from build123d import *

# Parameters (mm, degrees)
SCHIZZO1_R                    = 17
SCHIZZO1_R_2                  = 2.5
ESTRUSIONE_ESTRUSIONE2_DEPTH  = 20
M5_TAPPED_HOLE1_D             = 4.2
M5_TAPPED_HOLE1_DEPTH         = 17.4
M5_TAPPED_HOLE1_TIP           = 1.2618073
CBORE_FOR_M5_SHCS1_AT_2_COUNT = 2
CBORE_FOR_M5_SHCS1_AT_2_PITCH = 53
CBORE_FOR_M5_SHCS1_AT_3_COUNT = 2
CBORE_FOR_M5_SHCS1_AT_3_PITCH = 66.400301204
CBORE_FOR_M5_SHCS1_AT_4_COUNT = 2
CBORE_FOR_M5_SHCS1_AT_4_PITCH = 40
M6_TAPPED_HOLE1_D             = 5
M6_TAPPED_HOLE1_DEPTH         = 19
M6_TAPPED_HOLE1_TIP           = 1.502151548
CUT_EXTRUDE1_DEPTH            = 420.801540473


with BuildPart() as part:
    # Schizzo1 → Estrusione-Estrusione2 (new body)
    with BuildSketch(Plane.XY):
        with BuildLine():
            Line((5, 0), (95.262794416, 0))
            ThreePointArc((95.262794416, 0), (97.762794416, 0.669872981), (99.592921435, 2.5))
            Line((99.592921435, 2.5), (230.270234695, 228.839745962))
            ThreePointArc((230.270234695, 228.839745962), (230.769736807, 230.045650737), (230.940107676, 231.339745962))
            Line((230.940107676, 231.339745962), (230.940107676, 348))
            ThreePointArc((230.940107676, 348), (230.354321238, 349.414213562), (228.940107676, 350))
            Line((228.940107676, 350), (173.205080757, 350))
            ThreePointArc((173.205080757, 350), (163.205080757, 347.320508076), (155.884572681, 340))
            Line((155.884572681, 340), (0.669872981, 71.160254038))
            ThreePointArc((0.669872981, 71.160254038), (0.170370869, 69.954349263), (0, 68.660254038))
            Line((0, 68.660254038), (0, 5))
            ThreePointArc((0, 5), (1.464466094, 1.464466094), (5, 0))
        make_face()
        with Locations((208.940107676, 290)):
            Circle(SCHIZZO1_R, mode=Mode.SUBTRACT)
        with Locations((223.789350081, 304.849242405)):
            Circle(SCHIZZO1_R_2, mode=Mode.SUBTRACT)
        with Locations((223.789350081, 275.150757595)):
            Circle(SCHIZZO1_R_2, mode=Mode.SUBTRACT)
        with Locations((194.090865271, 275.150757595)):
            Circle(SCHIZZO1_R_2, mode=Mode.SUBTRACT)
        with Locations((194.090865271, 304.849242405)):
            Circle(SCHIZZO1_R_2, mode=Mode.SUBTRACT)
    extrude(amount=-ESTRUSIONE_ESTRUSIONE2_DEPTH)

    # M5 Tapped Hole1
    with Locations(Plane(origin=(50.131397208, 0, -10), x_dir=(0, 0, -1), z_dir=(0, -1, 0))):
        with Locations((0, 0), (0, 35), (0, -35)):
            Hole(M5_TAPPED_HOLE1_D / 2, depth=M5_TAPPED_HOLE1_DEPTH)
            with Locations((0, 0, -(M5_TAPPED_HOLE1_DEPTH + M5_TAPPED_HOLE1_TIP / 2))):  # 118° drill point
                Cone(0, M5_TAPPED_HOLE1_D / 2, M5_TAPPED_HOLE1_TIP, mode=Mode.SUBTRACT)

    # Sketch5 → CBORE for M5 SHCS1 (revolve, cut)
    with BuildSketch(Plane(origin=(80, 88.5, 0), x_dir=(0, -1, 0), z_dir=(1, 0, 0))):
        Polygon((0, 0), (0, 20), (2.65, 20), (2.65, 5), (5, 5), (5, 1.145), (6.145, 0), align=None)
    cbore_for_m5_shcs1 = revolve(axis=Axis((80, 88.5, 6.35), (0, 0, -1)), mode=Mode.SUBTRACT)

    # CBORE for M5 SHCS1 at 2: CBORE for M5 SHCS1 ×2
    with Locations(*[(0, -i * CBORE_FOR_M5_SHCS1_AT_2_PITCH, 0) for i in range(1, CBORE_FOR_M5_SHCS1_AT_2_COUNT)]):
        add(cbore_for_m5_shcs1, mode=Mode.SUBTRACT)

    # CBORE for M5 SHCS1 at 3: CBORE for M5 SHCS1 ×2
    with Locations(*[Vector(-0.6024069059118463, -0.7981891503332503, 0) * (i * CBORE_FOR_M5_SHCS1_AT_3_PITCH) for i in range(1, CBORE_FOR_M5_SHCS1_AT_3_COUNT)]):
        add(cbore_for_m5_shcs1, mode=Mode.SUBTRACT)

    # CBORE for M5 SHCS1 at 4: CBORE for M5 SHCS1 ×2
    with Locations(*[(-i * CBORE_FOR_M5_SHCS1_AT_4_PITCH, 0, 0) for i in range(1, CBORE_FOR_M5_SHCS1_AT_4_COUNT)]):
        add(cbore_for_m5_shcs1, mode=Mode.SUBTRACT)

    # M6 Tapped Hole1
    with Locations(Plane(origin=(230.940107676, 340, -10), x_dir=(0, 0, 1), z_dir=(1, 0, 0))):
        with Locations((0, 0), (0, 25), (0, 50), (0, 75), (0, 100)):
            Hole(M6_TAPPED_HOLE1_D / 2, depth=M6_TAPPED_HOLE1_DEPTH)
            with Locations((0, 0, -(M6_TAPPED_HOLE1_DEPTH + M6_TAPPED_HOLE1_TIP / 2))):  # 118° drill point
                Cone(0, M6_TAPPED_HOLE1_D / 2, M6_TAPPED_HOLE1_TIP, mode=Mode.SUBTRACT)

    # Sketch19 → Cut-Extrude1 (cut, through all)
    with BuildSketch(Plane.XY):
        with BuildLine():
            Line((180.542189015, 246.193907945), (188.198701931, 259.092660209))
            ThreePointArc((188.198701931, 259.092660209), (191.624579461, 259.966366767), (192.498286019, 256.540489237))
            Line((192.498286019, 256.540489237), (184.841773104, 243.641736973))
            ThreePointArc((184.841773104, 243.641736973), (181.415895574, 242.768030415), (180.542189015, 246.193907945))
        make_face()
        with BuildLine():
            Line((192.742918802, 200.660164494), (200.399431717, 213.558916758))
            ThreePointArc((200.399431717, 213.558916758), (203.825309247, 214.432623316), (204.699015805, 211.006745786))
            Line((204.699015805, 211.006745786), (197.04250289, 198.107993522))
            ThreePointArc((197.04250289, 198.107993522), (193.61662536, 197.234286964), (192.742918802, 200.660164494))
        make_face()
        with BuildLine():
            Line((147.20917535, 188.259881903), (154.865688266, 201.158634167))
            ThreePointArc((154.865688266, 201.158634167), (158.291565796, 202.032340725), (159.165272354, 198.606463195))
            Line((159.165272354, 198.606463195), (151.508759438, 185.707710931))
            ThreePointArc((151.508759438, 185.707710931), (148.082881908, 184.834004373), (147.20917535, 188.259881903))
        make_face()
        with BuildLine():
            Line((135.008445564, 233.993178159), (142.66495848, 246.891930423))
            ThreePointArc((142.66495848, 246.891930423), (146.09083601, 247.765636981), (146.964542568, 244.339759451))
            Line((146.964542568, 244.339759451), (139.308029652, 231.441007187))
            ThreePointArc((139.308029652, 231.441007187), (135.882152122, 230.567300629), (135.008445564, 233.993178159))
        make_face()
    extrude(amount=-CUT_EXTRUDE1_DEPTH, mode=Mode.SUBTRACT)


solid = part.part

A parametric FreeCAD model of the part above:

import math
import FreeCAD as App
import Part
import Sketcher
from FreeCAD import Vector
Q = App.Units.Quantity


def add_polygon(sketch, points):
    """Adds a closed chain of lines whose ends are joined by coincident constraints."""
    first, n = sketch.GeometryCount, len(points)
    for a, b in zip(points, points[1:] + points[:1]):
        sketch.addGeometry(Part.LineSegment(App.Vector(*a, 0), App.Vector(*b, 0)), False)
    for i in range(n):
        sketch.addConstraint(Sketcher.Constraint("Coincident", first + i, 2, first + (i + 1) % n, 1))

doc = App.newDocument("Part")
body = doc.addObject("PartDesign::Body", "Body")

# Sketch on XY plane
sketch1 = doc.addObject("Sketcher::SketchObject", "Sketch")
body.addObject(sketch1)
sketch1.AttachmentSupport = (doc.XY_Plane, [""])
sketch1.MapMode = "FlatFace"
sketch1.addGeometry(Part.LineSegment(Vector(5, 0, 0), Vector(95.3, 0, 0)), False)
sketch1.addGeometry(Part.ArcOfCircle(Part.Circle(Vector(95.3, 5, 0), Vector(0, 0, 1), 5), math.radians(-90), math.radians(-30)), False)
sketch1.addGeometry(Part.LineSegment(Vector(99.6, 2.5, 0), Vector(230.3, 228.8, 0)), False)
sketch1.addGeometry(Part.ArcOfCircle(Part.Circle(Vector(225.9, 231.3, 0), Vector(0, 0, 1), 5), math.radians(-30), math.radians(0)), False)
sketch1.addGeometry(Part.LineSegment(Vector(230.9, 231.3, 0), Vector(230.9, 348, 0)), False)
sketch1.addGeometry(Part.ArcOfCircle(Part.Circle(Vector(228.9, 348, 0), Vector(0, 0, 1), 2), math.radians(0), math.radians(90)), False)
sketch1.addGeometry(Part.LineSegment(Vector(228.9, 350, 0), Vector(173.2, 350, 0)), False)
sketch1.addGeometry(Part.ArcOfCircle(Part.Circle(Vector(173.2, 330, 0), Vector(0, 0, 1), 20), math.radians(90), math.radians(150)), False)
sketch1.addGeometry(Part.LineSegment(Vector(155.9, 340, 0), Vector(0.7, 71.2, 0)), False)
sketch1.addGeometry(Part.ArcOfCircle(Part.Circle(Vector(5, 68.7, 0), Vector(0, 0, 1), 5), math.radians(150), math.radians(180)), False)
sketch1.addGeometry(Part.LineSegment(Vector(0, 68.7, 0), Vector(0, 5, 0)), False)
sketch1.addGeometry(Part.ArcOfCircle(Part.Circle(Vector(5, 5, 0), Vector(0, 0, 1), 5), math.radians(180), math.radians(270)), False)
sketch1.addGeometry(Part.Circle(Vector(194.1, 275.2, 0), Vector(0, 0, 1), 2.5), False)
sketch1.addGeometry(Part.Circle(Vector(223.8, 275.2, 0), Vector(0, 0, 1), 2.5), False)
sketch1.addGeometry(Part.Circle(Vector(208.9, 290, 0), Vector(0, 0, 1), 17), False)
sketch1.addGeometry(Part.Circle(Vector(194.1, 304.8, 0), Vector(0, 0, 1), 2.5), False)
sketch1.addGeometry(Part.Circle(Vector(223.8, 304.8, 0), Vector(0, 0, 1), 2.5), False)
sketch1.addConstraint(Sketcher.Constraint("Tangent", 0, 2, 1, 1))
sketch1.addConstraint(Sketcher.Constraint("Tangent", 1, 2, 2, 1))
sketch1.addConstraint(Sketcher.Constraint("Tangent", 2, 2, 3, 1))
sketch1.addConstraint(Sketcher.Constraint("Tangent", 3, 2, 4, 1))
sketch1.addConstraint(Sketcher.Constraint("Tangent", 4, 2, 5, 1))
sketch1.addConstraint(Sketcher.Constraint("Tangent", 5, 2, 6, 1))
sketch1.addConstraint(Sketcher.Constraint("Tangent", 6, 2, 7, 1))
sketch1.addConstraint(Sketcher.Constraint("Tangent", 7, 2, 8, 1))
sketch1.addConstraint(Sketcher.Constraint("Tangent", 8, 2, 9, 1))
sketch1.addConstraint(Sketcher.Constraint("Tangent", 9, 2, 10, 1))
sketch1.addConstraint(Sketcher.Constraint("Tangent", 10, 2, 11, 1))
sketch1.addConstraint(Sketcher.Constraint("Tangent", 11, 2, 0, 1))
sketch1.addConstraint(Sketcher.Constraint("Horizontal", 0))
sketch1.addConstraint(Sketcher.Constraint("Vertical", 4))
sketch1.addConstraint(Sketcher.Constraint("Horizontal", 6))
sketch1.addConstraint(Sketcher.Constraint("Vertical", 10))
sketch1.addConstraint(Sketcher.Constraint("Equal", 1, 3))
sketch1.addConstraint(Sketcher.Constraint("Equal", 3, 9))
sketch1.addConstraint(Sketcher.Constraint("Equal", 9, 11))
sketch1.addConstraint(Sketcher.Constraint("Equal", 12, 13))
sketch1.addConstraint(Sketcher.Constraint("Equal", 13, 15))
sketch1.addConstraint(Sketcher.Constraint("Equal", 15, 16))
sketch1.addConstraint(Sketcher.Constraint("PointOnObject", 0, 2, -1))
sketch1.addConstraint(Sketcher.Constraint("PointOnObject", 9, 2, -2))
sketch1.addConstraint(Sketcher.Constraint("Parallel", 2, 8))
sketch1.addConstraint(Sketcher.Constraint("Horizontal", 12, 3, 13, 3))
sketch1.addConstraint(Sketcher.Constraint("Horizontal", 15, 3, 16, 3))
sketch1.addConstraint(Sketcher.Constraint("Vertical", 12, 3, 15, 3))
sketch1.addConstraint(Sketcher.Constraint("Vertical", 13, 3, 16, 3))
sketch1.addConstraint(Sketcher.Constraint("Diameter", 12, Q("5 mm")))
sketch1.addConstraint(Sketcher.Constraint("Diameter", 14, Q("34 mm")))
sketch1.addConstraint(Sketcher.Constraint("Radius", 1, Q("5 mm")))
sketch1.addConstraint(Sketcher.Constraint("Radius", 5, Q("2 mm")))
sketch1.addConstraint(Sketcher.Constraint("Radius", 7, Q("20 mm")))
sketch1.addConstraint(Sketcher.Constraint("Angle", 2, Q("60 deg")))
sketch1.addConstraint(Sketcher.Constraint("DistanceY", -1, 1, 5, 3, Q("348 mm")))
sketch1.addConstraint(Sketcher.Constraint("DistanceY", -1, 1, 14, 3, Q("290 mm")))
sketch1.addConstraint(Sketcher.Constraint("DistanceX", 14, 3, 3, 3, Q("17 mm")))
sketch1.addConstraint(Sketcher.Constraint("Distance", 8, Q("310.429399 mm")))
sketch1.addConstraint(Sketcher.Constraint("DistanceX", 0, 1, 0, 2, Q("90.262794 mm")))
sketch1.addConstraint(Sketcher.Constraint("DistanceX", 6, 2, 6, 1, Q("55.735027 mm")))
sketch1.addConstraint(Sketcher.Constraint("DistanceX", -1, 1, 13, 3, Q("223.78935 mm")))
sketch1.addConstraint(Sketcher.Constraint("DistanceY", 3, 3, 12, 3, Q("43.811012 mm")))
sketch1.addConstraint(Sketcher.Constraint("DistanceX", 1, 3, 12, 3, Q("98.828071 mm")))
sketch1.addConstraint(Sketcher.Constraint("DistanceY", -1, 1, 15, 3, Q("304.849242 mm")))
pad1 = doc.addObject("PartDesign::Pad", "Pad")
body.addObject(pad1)
pad1.Profile = sketch1
pad1.Length = 20
pad1.Reversed = True

# Sketch on XZ plane
sketch2 = doc.addObject("Sketcher::SketchObject", "Sketch001")
body.addObject(sketch2)
sketch2.AttachmentSupport = (doc.XZ_Plane, [""])
sketch2.MapMode = "FlatFace"
sketch2.addGeometry(Part.Circle(Vector(50.1, -10, 0), Vector(0, 0, 1), 2.1), False)
sketch2.addGeometry(Part.Circle(Vector(85.1, -10, 0), Vector(0, 0, 1), 2.1), False)
sketch2.addGeometry(Part.Circle(Vector(15.1, -10, 0), Vector(0, 0, 1), 2.1), False)
sketch2.addConstraint(Sketcher.Constraint("Equal", 0, 1))
sketch2.addConstraint(Sketcher.Constraint("Equal", 1, 2))
sketch2.addConstraint(Sketcher.Constraint("Horizontal", 0, 3, 1, 3))
sketch2.addConstraint(Sketcher.Constraint("Horizontal", 1, 3, 2, 3))
sketch2.addConstraint(Sketcher.Constraint("Diameter", 0, Q("4.2 mm")))
sketch2.addConstraint(Sketcher.Constraint("DistanceY", 0, 3, -1, 1, Q("10 mm")))
sketch2.addConstraint(Sketcher.Constraint("DistanceX", 0, 3, 1, 3, Q("35 mm")))
sketch2.addConstraint(Sketcher.Constraint("DistanceX", 2, 3, 0, 3, Q("35 mm")))
sketch2.addConstraint(Sketcher.Constraint("DistanceX", -1, 1, 0, 3, Q("50.131397 mm")))
doc.recompute()
hole = doc.addObject("PartDesign::Hole", "Hole")
body.addObject(hole)
hole.Profile = sketch2
hole.ThreadType = "None"
hole.Diameter = 4.2
hole.DepthType = "Dimension"
hole.Depth = 17.4
hole.DrillPoint = "Angled"
hole.DrillPointAngle = 118

# Sketch on YZ plane
sketch3 = doc.addObject("Sketcher::SketchObject", "Sketch002")
body.addObject(sketch3)
sketch3.AttachmentSupport = (doc.YZ_Plane, [""])
sketch3.MapMode = "FlatFace"
sketch3.AttachmentOffset = App.Placement(Vector(0, 0, 80), App.Rotation())
add_polygon(sketch3, [(88.5, -20), (88.5, 0), (82.4, 0), (83.5, -1.1), (83.5, -5), (85.8, -5), (85.8, -20)])  # lines 0-6
sketch3.addGeometry(Part.LineSegment(Vector(88.5, 0, 0), Vector(88.5, -20, 0)), True)  # axis
sketch3.addConstraint(Sketcher.Constraint("Vertical", 0))
sketch3.addConstraint(Sketcher.Constraint("Horizontal", 1))
sketch3.addConstraint(Sketcher.Constraint("Vertical", 3))
sketch3.addConstraint(Sketcher.Constraint("Horizontal", 4))
sketch3.addConstraint(Sketcher.Constraint("Vertical", 5))
sketch3.addConstraint(Sketcher.Constraint("Horizontal", 6))
sketch3.addConstraint(Sketcher.Constraint("Vertical", 7))
sketch3.addConstraint(Sketcher.Constraint("Coincident", 7, 1, 0, 2))
sketch3.addConstraint(Sketcher.Constraint("PointOnObject", 0, 2, -1))
sketch3.addConstraint(Sketcher.Constraint("Horizontal", 5, 2, 7, 2))
sketch3.addConstraint(Sketcher.Constraint("DistanceY", 0, 1, 0, 2, Q("20 mm")))
sketch3.addConstraint(Sketcher.Constraint("DistanceY", 5, 2, 5, 1, Q("15 mm")))
sketch3.addConstraint(Sketcher.Constraint("Angle", 2, Q("-45 deg")))
sketch3.addConstraint(Sketcher.Constraint("DistanceX", 2, 2, 0, 2, Q("5 mm")))
sketch3.addConstraint(Sketcher.Constraint("DistanceX", 4, 1, 4, 2, Q("2.35 mm")))
sketch3.addConstraint(Sketcher.Constraint("DistanceX", -1, 1, 0, 2, Q("88.5 mm")))
sketch3.addConstraint(Sketcher.Constraint("DistanceX", 1, 2, 1, 1, Q("6.145 mm")))
groove = doc.addObject("PartDesign::Groove", "Groove")
body.addObject(groove)
groove.Profile = sketch3
groove.ReferenceAxis = (sketch3, ["Axis0"])
groove.Angle = 360
doc.recompute()

linearpattern = doc.addObject("PartDesign::LinearPattern", "LinearPattern")
body.addObject(linearpattern)
linearpattern.Originals = [groove]
linearpattern.Direction = (doc.Y_Axis, [""])
linearpattern.Mode = "offset"
linearpattern.Offset = 53
linearpattern.Occurrences = 2
linearpattern.Reversed = True
body.Tip = linearpattern
doc.recompute()

datumline = doc.addObject("PartDesign::Line", "DatumLine")
body.addObject(datumline)
datumline.Placement = App.Placement(Vector(0, 0, 0), App.Rotation(Vector(0, 0, 1), Vector(-0.602406906, -0.79818915, 0)))
linearpattern2 = doc.addObject("PartDesign::LinearPattern", "LinearPattern001")
body.addObject(linearpattern2)
linearpattern2.Originals = [groove]
linearpattern2.Direction = (datumline, [""])
linearpattern2.Mode = "offset"
linearpattern2.Offset = 66.400301
linearpattern2.Occurrences = 2
body.Tip = linearpattern2
doc.recompute()

linearpattern3 = doc.addObject("PartDesign::LinearPattern", "LinearPattern002")
body.addObject(linearpattern3)
linearpattern3.Originals = [groove]
linearpattern3.Direction = (doc.X_Axis, [""])
linearpattern3.Mode = "offset"
linearpattern3.Offset = 40
linearpattern3.Occurrences = 2
linearpattern3.Reversed = True
body.Tip = linearpattern3

# Sketch on YZ plane
sketch4 = doc.addObject("Sketcher::SketchObject", "Sketch003")
body.addObject(sketch4)
sketch4.AttachmentSupport = (doc.YZ_Plane, [""])
sketch4.MapMode = "FlatFace"
sketch4.AttachmentOffset = App.Placement(Vector(0, 0, 230.940108), App.Rotation())
sketch4.addGeometry(Part.Circle(Vector(340, -10, 0), Vector(0, 0, 1), 2.5), False)
sketch4.addGeometry(Part.Circle(Vector(315, -10, 0), Vector(0, 0, 1), 2.5), False)
sketch4.addGeometry(Part.Circle(Vector(290, -10, 0), Vector(0, 0, 1), 2.5), False)
sketch4.addGeometry(Part.Circle(Vector(265, -10, 0), Vector(0, 0, 1), 2.5), False)
sketch4.addGeometry(Part.Circle(Vector(240, -10, 0), Vector(0, 0, 1), 2.5), False)
sketch4.addConstraint(Sketcher.Constraint("Equal", 0, 1))
sketch4.addConstraint(Sketcher.Constraint("Equal", 1, 2))
sketch4.addConstraint(Sketcher.Constraint("Equal", 2, 3))
sketch4.addConstraint(Sketcher.Constraint("Equal", 3, 4))
sketch4.addConstraint(Sketcher.Constraint("Horizontal", 0, 3, 1, 3))
sketch4.addConstraint(Sketcher.Constraint("Horizontal", 1, 3, 2, 3))
sketch4.addConstraint(Sketcher.Constraint("Horizontal", 2, 3, 3, 3))
sketch4.addConstraint(Sketcher.Constraint("Horizontal", 3, 3, 4, 3))
sketch4.addConstraint(Sketcher.Constraint("Diameter", 0, Q("5 mm")))
sketch4.addConstraint(Sketcher.Constraint("DistanceX", -1, 1, 0, 3, Q("340 mm")))
sketch4.addConstraint(Sketcher.Constraint("DistanceY", 0, 3, -1, 1, Q("10 mm")))
sketch4.addConstraint(Sketcher.Constraint("DistanceX", -1, 1, 1, 3, Q("315 mm")))
sketch4.addConstraint(Sketcher.Constraint("DistanceX", -1, 1, 2, 3, Q("290 mm")))
sketch4.addConstraint(Sketcher.Constraint("DistanceX", -1, 1, 3, 3, Q("265 mm")))
sketch4.addConstraint(Sketcher.Constraint("DistanceX", -1, 1, 4, 3, Q("240 mm")))
doc.recompute()
hole2 = doc.addObject("PartDesign::Hole", "Hole001")
body.addObject(hole2)
hole2.Profile = sketch4
hole2.ThreadType = "None"
hole2.Diameter = 5
hole2.DepthType = "Dimension"
hole2.Depth = 19
hole2.DrillPoint = "Angled"
hole2.DrillPointAngle = 118

# Sketch on XY plane
sketch5 = doc.addObject("Sketcher::SketchObject", "Sketch004")
body.addObject(sketch5)
sketch5.AttachmentSupport = (doc.XY_Plane, [""])
sketch5.MapMode = "FlatFace"
sketch5.addGeometry(Part.LineSegment(Vector(188.2, 259.1, 0), Vector(180.5, 246.2, 0)), False)
sketch5.addGeometry(Part.ArcOfCircle(Part.Circle(Vector(182.7, 244.9, 0), Vector(0, 0, 1), 2.5), math.radians(149), math.radians(329)), False)
sketch5.addGeometry(Part.LineSegment(Vector(184.8, 243.6, 0), Vector(192.5, 256.5, 0)), False)
sketch5.addGeometry(Part.ArcOfCircle(Part.Circle(Vector(190.3, 257.8, 0), Vector(0, 0, 1), 2.5), math.radians(-31), math.radians(149)), False)
sketch5.addGeometry(Part.LineSegment(Vector(200.4, 213.6, 0), Vector(192.7, 200.7, 0)), False)
sketch5.addGeometry(Part.ArcOfCircle(Part.Circle(Vector(194.9, 199.4, 0), Vector(0, 0, 1), 2.5), math.radians(149), math.radians(329)), False)
sketch5.addGeometry(Part.LineSegment(Vector(197, 198.1, 0), Vector(204.7, 211, 0)), False)
sketch5.addGeometry(Part.ArcOfCircle(Part.Circle(Vector(202.5, 212.3, 0), Vector(0, 0, 1), 2.5), math.radians(-31), math.radians(149)), False)
sketch5.addGeometry(Part.LineSegment(Vector(154.9, 201.2, 0), Vector(147.2, 188.3, 0)), False)
sketch5.addGeometry(Part.ArcOfCircle(Part.Circle(Vector(149.4, 187, 0), Vector(0, 0, 1), 2.5), math.radians(149), math.radians(329)), False)
sketch5.addGeometry(Part.LineSegment(Vector(151.5, 185.7, 0), Vector(159.2, 198.6, 0)), False)
sketch5.addGeometry(Part.ArcOfCircle(Part.Circle(Vector(157, 199.9, 0), Vector(0, 0, 1), 2.5), math.radians(-31), math.radians(149)), False)
sketch5.addGeometry(Part.LineSegment(Vector(142.7, 246.9, 0), Vector(135, 234, 0)), False)
sketch5.addGeometry(Part.ArcOfCircle(Part.Circle(Vector(137.2, 232.7, 0), Vector(0, 0, 1), 2.5), math.radians(149), math.radians(329)), False)
sketch5.addGeometry(Part.LineSegment(Vector(139.3, 231.4, 0), Vector(147, 244.3, 0)), False)
sketch5.addGeometry(Part.ArcOfCircle(Part.Circle(Vector(144.8, 245.6, 0), Vector(0, 0, 1), 2.5), math.radians(-31), math.radians(149)), False)
sketch5.addConstraint(Sketcher.Constraint("Tangent", 0, 2, 1, 1))
sketch5.addConstraint(Sketcher.Constraint("Tangent", 1, 2, 2, 1))
sketch5.addConstraint(Sketcher.Constraint("Tangent", 2, 2, 3, 1))
sketch5.addConstraint(Sketcher.Constraint("Tangent", 3, 2, 0, 1))
sketch5.addConstraint(Sketcher.Constraint("Tangent", 4, 2, 5, 1))
sketch5.addConstraint(Sketcher.Constraint("Tangent", 5, 2, 6, 1))
sketch5.addConstraint(Sketcher.Constraint("Tangent", 6, 2, 7, 1))
sketch5.addConstraint(Sketcher.Constraint("Tangent", 7, 2, 4, 1))
sketch5.addConstraint(Sketcher.Constraint("Tangent", 8, 2, 9, 1))
sketch5.addConstraint(Sketcher.Constraint("Tangent", 9, 2, 10, 1))
sketch5.addConstraint(Sketcher.Constraint("Tangent", 10, 2, 11, 1))
sketch5.addConstraint(Sketcher.Constraint("Tangent", 11, 2, 8, 1))
sketch5.addConstraint(Sketcher.Constraint("Tangent", 12, 2, 13, 1))
sketch5.addConstraint(Sketcher.Constraint("Tangent", 13, 2, 14, 1))
sketch5.addConstraint(Sketcher.Constraint("Tangent", 14, 2, 15, 1))
sketch5.addConstraint(Sketcher.Constraint("Tangent", 15, 2, 12, 1))
sketch5.addConstraint(Sketcher.Constraint("Equal", 1, 3))
sketch5.addConstraint(Sketcher.Constraint("Equal", 3, 5))
sketch5.addConstraint(Sketcher.Constraint("Equal", 5, 7))
sketch5.addConstraint(Sketcher.Constraint("Equal", 7, 9))
sketch5.addConstraint(Sketcher.Constraint("Equal", 9, 11))
sketch5.addConstraint(Sketcher.Constraint("Equal", 11, 13))
sketch5.addConstraint(Sketcher.Constraint("Equal", 13, 15))
sketch5.addConstraint(Sketcher.Constraint("Parallel", 2, 4))
sketch5.addConstraint(Sketcher.Constraint("Parallel", 6, 8))
sketch5.addConstraint(Sketcher.Constraint("Parallel", 10, 12))
sketch5.addConstraint(Sketcher.Constraint("Equal", 2, 4))
sketch5.addConstraint(Sketcher.Constraint("Equal", 6, 8))
sketch5.addConstraint(Sketcher.Constraint("Equal", 10, 12))
sketch5.addConstraint(Sketcher.Constraint("Radius", 1, Q("2.5 mm")))
sketch5.addConstraint(Sketcher.Constraint("Distance", 0, Q("15 mm")))
sketch5.addConstraint(Sketcher.Constraint("DistanceX", -1, 1, 3, 2, Q("188.198702 mm")))
sketch5.addConstraint(Sketcher.Constraint("DistanceX", 11, 3, 1, 3, Q("25.676501 mm")))
sketch5.addConstraint(Sketcher.Constraint("DistanceY", 10, 2, 4, 2, Q("2.053701 mm")))
sketch5.addConstraint(Sketcher.Constraint("DistanceX", -1, 1, 1, 3, Q("182.691981 mm")))
sketch5.addConstraint(Sketcher.Constraint("DistanceX", -1, 1, 5, 3, Q("194.892711 mm")))
sketch5.addConstraint(Sketcher.Constraint("DistanceY", -1, 1, 5, 3, Q("199.384079 mm")))
sketch5.addConstraint(Sketcher.Constraint("DistanceX", -1, 1, 15, 3, Q("144.814751 mm")))
sketch5.addConstraint(Sketcher.Constraint("DistanceY", -1, 1, 2, 2, Q("256.540489 mm")))
sketch5.addConstraint(Sketcher.Constraint("DistanceY", -1, 1, 12, 2, Q("233.993178 mm")))
pocket1 = doc.addObject("PartDesign::Pocket", "Pocket")
body.addObject(pocket1)
pocket1.Profile = sketch5
pocket1.Type = "ThroughAll"

doc.recompute()
